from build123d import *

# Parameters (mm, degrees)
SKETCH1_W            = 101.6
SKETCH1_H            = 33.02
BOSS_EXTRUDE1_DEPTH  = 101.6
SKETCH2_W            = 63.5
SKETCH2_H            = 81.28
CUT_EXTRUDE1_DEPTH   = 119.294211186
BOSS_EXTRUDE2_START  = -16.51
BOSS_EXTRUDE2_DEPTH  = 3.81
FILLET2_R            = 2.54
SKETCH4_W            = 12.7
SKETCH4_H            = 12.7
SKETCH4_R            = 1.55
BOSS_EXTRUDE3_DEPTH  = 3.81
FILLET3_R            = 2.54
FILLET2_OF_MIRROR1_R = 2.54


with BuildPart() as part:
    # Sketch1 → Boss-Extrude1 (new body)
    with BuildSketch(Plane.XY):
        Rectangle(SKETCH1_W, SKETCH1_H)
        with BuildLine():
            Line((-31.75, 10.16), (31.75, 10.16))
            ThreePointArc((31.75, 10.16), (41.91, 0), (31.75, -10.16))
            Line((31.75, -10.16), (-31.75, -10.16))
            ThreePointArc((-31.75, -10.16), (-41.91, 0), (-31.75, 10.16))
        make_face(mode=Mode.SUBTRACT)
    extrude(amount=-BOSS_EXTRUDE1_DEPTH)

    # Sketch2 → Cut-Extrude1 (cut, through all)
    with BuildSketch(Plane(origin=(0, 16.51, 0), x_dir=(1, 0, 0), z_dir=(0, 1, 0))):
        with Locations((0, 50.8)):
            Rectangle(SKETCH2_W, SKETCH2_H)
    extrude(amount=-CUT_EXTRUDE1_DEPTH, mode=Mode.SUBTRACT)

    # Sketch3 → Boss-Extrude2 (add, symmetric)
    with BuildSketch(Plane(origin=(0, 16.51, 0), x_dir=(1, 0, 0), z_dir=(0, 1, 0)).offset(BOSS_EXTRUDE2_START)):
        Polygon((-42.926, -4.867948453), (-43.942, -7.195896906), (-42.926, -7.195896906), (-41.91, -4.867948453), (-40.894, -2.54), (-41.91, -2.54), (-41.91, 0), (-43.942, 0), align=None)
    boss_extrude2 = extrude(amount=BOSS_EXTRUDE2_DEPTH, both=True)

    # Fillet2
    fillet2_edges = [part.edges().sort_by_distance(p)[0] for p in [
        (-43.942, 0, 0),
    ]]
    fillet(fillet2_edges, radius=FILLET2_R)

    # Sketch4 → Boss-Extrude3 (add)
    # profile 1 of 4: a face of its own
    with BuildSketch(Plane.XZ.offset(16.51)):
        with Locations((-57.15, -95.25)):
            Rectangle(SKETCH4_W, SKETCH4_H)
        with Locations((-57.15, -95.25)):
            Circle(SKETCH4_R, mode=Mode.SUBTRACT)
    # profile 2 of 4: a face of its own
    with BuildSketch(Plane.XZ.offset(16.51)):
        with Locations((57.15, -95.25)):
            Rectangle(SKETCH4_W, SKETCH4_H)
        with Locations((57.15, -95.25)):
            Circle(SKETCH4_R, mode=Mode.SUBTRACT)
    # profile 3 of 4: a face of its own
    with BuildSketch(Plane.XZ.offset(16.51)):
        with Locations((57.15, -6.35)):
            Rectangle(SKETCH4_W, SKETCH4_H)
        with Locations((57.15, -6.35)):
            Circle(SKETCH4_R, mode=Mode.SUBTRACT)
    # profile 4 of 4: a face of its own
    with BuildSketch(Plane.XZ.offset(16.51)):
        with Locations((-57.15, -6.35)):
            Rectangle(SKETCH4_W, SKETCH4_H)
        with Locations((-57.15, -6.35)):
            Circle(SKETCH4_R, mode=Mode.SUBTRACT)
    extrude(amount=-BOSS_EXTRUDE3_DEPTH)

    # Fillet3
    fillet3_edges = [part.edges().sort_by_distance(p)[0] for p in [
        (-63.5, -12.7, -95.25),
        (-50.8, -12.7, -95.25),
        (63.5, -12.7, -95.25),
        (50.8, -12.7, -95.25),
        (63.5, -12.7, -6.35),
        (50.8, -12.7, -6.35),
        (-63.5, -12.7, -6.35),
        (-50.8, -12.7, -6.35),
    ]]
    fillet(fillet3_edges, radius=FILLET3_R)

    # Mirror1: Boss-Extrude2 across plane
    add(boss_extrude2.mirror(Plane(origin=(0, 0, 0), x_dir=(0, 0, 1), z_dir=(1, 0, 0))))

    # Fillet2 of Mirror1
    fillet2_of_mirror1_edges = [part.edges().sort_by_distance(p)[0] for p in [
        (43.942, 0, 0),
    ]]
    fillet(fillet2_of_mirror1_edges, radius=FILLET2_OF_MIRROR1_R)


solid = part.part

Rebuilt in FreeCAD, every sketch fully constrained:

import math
import FreeCAD as App
import Part
import Sketcher
from FreeCAD import Vector
Q = App.Units.Quantity


def edges_at(feature, points):
    """Names of the edges that pass closest to the given points."""
    edges = feature.Shape.Edges
    near = lambda p: min(range(len(edges)), key=lambda i: edges[i].distToShape(Part.Vertex(*p))[0])
    return sorted({f"Edge{near(p) + 1}" for p in points})


def add_polygon(sketch, points):
    """Adds a closed chain of lines whose ends are joined by coincident constraints."""
    first, n = sketch.GeometryCount, len(points)
    for a, b in zip(points, points[1:] + points[:1]):
        sketch.addGeometry(Part.LineSegment(App.Vector(*a, 0), App.Vector(*b, 0)), False)
    for i in range(n):
        sketch.addConstraint(Sketcher.Constraint("Coincident", first + i, 2, first + (i + 1) % n, 1))

doc = App.newDocument("Part")
params = doc.addObject("Spreadsheet::Sheet", "Params")
for row, (alias, value) in enumerate([
    ("sketch1_radius", "0.4 in"),
    ("sketch1_width", "4 in"),
    ("sketch1_width2", "2.5 in"),
    ("sketch1_height", "1.3 in"),
    ("pad1_length", "4 in"),
    ("sketch2_width", "2.5 in"),
    ("sketch2_height", "3.2 in"),
    ("sketch3_height", "0.1 in"),
    ("sketch3_length", "0.1 in"),
    ("sketch3_length2", "0.2 in"),
    ("sketch3_width", "0.04 in"),
    ("pad2_length", "0.3 in"),
    ("fillet_radius", "0.1 in"),
    ("sketch4_width", "0.5 in"),
    ("pad3_length", "0.15 in"),
    ("fillet2_radius", "0.1 in"),
    ("fillet3_radius", "0.1 in"),
], start=1):
    params.set(f"A{row}", alias)
    params.set(f"B{row}", "=" + value)
    params.setAlias(f"B{row}", alias)

body = doc.addObject("PartDesign::Body", "Body")

# Sketch on XY plane
sketch1 = body.newObject("Sketcher::SketchObject", "Sketch")
sketch1.AttachmentSupport = (doc.getObject("XY_Plane"), [""])
sketch1.MapMode = "FlatFace"
add_polygon(sketch1, [(-50.8, 16.51), (-50.8, -16.51), (50.8, -16.51), (50.8, 16.51)])  # lines 0-3
sketch1.addGeometry(Part.ArcOfCircle(Part.Circle(Vector(-31.75, 0, 0), Vector(0, 0, 1), 10.16), math.radians(90), math.radians(270)), False)  # 4
sketch1.addGeometry(Part.LineSegment(Vector(-31.75, 10.16, 0), Vector(31.75, 10.16, 0)), False)  # 5
sketch1.addGeometry(Part.ArcOfCircle(Part.Circle(Vector(31.75, 0, 0), Vector(0, 0, 1), 10.16), math.radians(-90), math.radians(90)), False)  # 6
sketch1.addGeometry(Part.LineSegment(Vector(31.75, -10.16, 0), Vector(-31.75, -10.16, 0)), False)  # 7
sketch1.addConstraint(Sketcher.Constraint("Tangent", 4, 1, 5, 1))
sketch1.addConstraint(Sketcher.Constraint("Tangent", 5, 2, 6, 2))
sketch1.addConstraint(Sketcher.Constraint("Tangent", 6, 1, 7, 1))
sketch1.addConstraint(Sketcher.Constraint("Tangent", 7, 2, 4, 2))
sketch1.addConstraint(Sketcher.Constraint("Vertical", 0))
sketch1.addConstraint(Sketcher.Constraint("Horizontal", 1))
sketch1.addConstraint(Sketcher.Constraint("Vertical", 2))
sketch1.addConstraint(Sketcher.Constraint("Horizontal", 3))
sketch1.addConstraint(Sketcher.Constraint("Horizontal", 5))
sketch1.addConstraint(Sketcher.Constraint("Horizontal", 7))
sketch1.addConstraint(Sketcher.Constraint("Symmetric", 4, 3, 6, 3, -1, 1))
sketch1.addConstraint(Sketcher.Constraint("Symmetric", 0, 2, 2, 2, -1, 1))
sketch1.addConstraint(Sketcher.Constraint("Radius", 4, Q("0.4 in")))
sketch1.addConstraint(Sketcher.Constraint("DistanceX", 1, 1, 1, 2, Q("4 in")))
sketch1.addConstraint(Sketcher.Constraint("DistanceX", 5, 1, 5, 2, Q("2.5 in")))
sketch1.addConstraint(Sketcher.Constraint("DistanceY", 0, 2, 0, 1, Q("1.3 in")))
sketch1.setExpression("Constraints[16]", "Params.sketch1_radius")
sketch1.setExpression("Constraints[17]", "Params.sketch1_width")
sketch1.setExpression("Constraints[18]", "Params.sketch1_width2")
sketch1.setExpression("Constraints[19]", "Params.sketch1_height")
pad1 = body.newObject("PartDesign::Pad", "Pad")
pad1.Profile = sketch1
pad1.setExpression("Length", "Params.pad1_length")
pad1.Reversed = True

# Sketch on XZ plane
sketch2 = body.newObject("Sketcher::SketchObject", "Sketch001")
sketch2.AttachmentSupport = (doc.getObject("XZ_Plane"), [""])
sketch2.MapMode = "FlatFace"
sketch2.AttachmentOffset = App.Placement(Vector(0, 0, -0.65 * 25.4), App.Rotation())
add_polygon(sketch2, [(-31.75, -91.44), (-31.75, -10.16), (31.75, -10.16), (31.75, -91.44)])  # lines 0-3
sketch2.addConstraint(Sketcher.Constraint("Vertical", 0))
sketch2.addConstraint(Sketcher.Constraint("Horizontal", 1))
sketch2.addConstraint(Sketcher.Constraint("Vertical", 2))
sketch2.addConstraint(Sketcher.Constraint("Horizontal", 3))
sketch2.addConstraint(Sketcher.Constraint("DistanceX", 1, 1, 1, 2, Q("2.5 in")))
sketch2.addConstraint(Sketcher.Constraint("DistanceY", 0, 1, 0, 2, Q("3.2 in")))
sketch2.addConstraint(Sketcher.Constraint("DistanceY", 0, 2, -1, 1, Q("0.4 in")))
sketch2.addConstraint(Sketcher.Constraint("DistanceX", 0, 2, -1, 1, Q("1.25 in")))
sketch2.setExpression("Constraints[8]", "Params.sketch2_width")
sketch2.setExpression("Constraints[9]", "Params.sketch2_height")
pocket1 = body.newObject("PartDesign::Pocket", "Pocket")
pocket1.Profile = sketch2
pocket1.Type = "ThroughAll"
pocket1.Reversed = True

# Sketch on XZ plane
sketch3 = body.newObject("Sketcher::SketchObject", "Sketch002")
sketch3.AttachmentSupport = (doc.getObject("XZ_Plane"), [""])
sketch3.MapMode = "FlatFace"
add_polygon(sketch3, [(-42.926, 4.867948), (-43.942, 7.195897), (-42.926, 7.195897), (-40.894, 2.54), (-41.91, 2.54), (-41.91, 0), (-43.942, 0)])  # lines 0-6
sketch3.addConstraint(Sketcher.Constraint("Horizontal", 1))
sketch3.addConstraint(Sketcher.Constraint("Horizontal", 3))
sketch3.addConstraint(Sketcher.Constraint("Vertical", 4))
sketch3.addConstraint(Sketcher.Constraint("Horizontal", 5))
sketch3.addConstraint(Sketcher.Constraint("PointOnObject", 4, 2, -1))
sketch3.addConstraint(Sketcher.Constraint("Parallel", 0, 2))
sketch3.addConstraint(Sketcher.Constraint("Vertical", 0, 2, 5, 2))
sketch3.addConstraint(Sketcher.Constraint("Vertical", 1, 2, 6, 2))
sketch3.addConstraint(Sketcher.Constraint("Equal", 1, 3))
sketch3.addConstraint(Sketcher.Constraint("DistanceY", 4, 2, 4, 1, Q("0.1 in")))
sketch3.addConstraint(Sketcher.Constraint("Distance", 0, Q("0.1 in")))
sketch3.addConstraint(Sketcher.Constraint("Distance", 2, Q("0.2 in")))
sketch3.addConstraint(Sketcher.Constraint("DistanceX", 1, 1, 1, 2, Q("0.04 in")))
sketch3.addConstraint(Sketcher.Constraint("DistanceX", 0, 2, -1, 1, Q("1.73 in")))
sketch3.setExpression("Constraints[16]", "Params.sketch3_height")
sketch3.setExpression("Constraints[17]", "Params.sketch3_length")
sketch3.setExpression("Constraints[18]", "Params.sketch3_length2")
sketch3.setExpression("Constraints[19]", "Params.sketch3_width")
pad2 = body.newObject("PartDesign::Pad", "Pad001")
pad2.Profile = sketch3
pad2.setExpression("Length", "Params.pad2_length")
pad2.Midplane = True
doc.recompute()

fillet = body.newObject("PartDesign::Fillet", "Fillet")
fillet.Base = (pad2, edges_at(pad2, [(-43.942, 0, 0)]))
fillet.setExpression("Radius", "Params.fillet_radius")

# Sketch on XZ plane
sketch4 = body.newObject("Sketcher::SketchObject", "Sketch003")
sketch4.AttachmentSupport = (doc.getObject("XZ_Plane"), [""])
sketch4.MapMode = "FlatFace"
sketch4.AttachmentOffset = App.Placement(Vector(0, 0, 0.65 * 25.4), App.Rotation())
add_polygon(sketch4, [(-63.5, -88.9), (-63.5, -101.6), (-50.8, -101.6), (-50.8, -88.9)])  # lines 0-3
sketch4.addGeometry(Part.Circle(Vector(-57.15, -95.25, 0), Vector(0, 0, 1), 1.55), False)  # 4
add_polygon(sketch4, [(50.8, -88.9), (50.8, -101.6), (63.5, -101.6), (63.5, -88.9)])  # lines 5-8
sketch4.addGeometry(Part.Circle(Vector(57.15, -95.25, 0), Vector(0, 0, 1), 1.55), False)  # 9
add_polygon(sketch4, [(50.8, 0), (50.8, -12.7), (63.5, -12.7), (63.5, 0)])  # lines 10-13
sketch4.addGeometry(Part.Circle(Vector(57.15, -6.35, 0), Vector(0, 0, 1), 1.55), False)  # 14
add_polygon(sketch4, [(-63.5, 0), (-63.5, -12.7), (-50.8, -12.7), (-50.8, 0)])  # lines 15-18
sketch4.addGeometry(Part.Circle(Vector(-57.15, -6.35, 0), Vector(0, 0, 1), 1.55), False)  # 19
sketch4.addConstraint(Sketcher.Constraint("Vertical", 0))
sketch4.addConstraint(Sketcher.Constraint("Horizontal", 1))
sketch4.addConstraint(Sketcher.Constraint("Vertical", 2))
sketch4.addConstraint(Sketcher.Constraint("Horizontal", 3))
sketch4.addConstraint(Sketcher.Constraint("Vertical", 5))
sketch4.addConstraint(Sketcher.Constraint("Horizontal", 6))
sketch4.addConstraint(Sketcher.Constraint("Vertical", 7))
sketch4.addConstraint(Sketcher.Constraint("Horizontal", 8))
sketch4.addConstraint(Sketcher.Constraint("Vertical", 10))
sketch4.addConstraint(Sketcher.Constraint("Horizontal", 11))
sketch4.addConstraint(Sketcher.Constraint("Vertical", 12))
sketch4.addConstraint(Sketcher.Constraint("Horizontal", 13))
sketch4.addConstraint(Sketcher.Constraint("Vertical", 15))
sketch4.addConstraint(Sketcher.Constraint("Horizontal", 16))
sketch4.addConstraint(Sketcher.Constraint("Vertical", 17))
sketch4.addConstraint(Sketcher.Constraint("Horizontal", 18))
sketch4.addConstraint(Sketcher.Constraint("Equal", 4, 9))
sketch4.addConstraint(Sketcher.Constraint("Equal", 9, 14))
sketch4.addConstraint(Sketcher.Constraint("Equal", 14, 19))
sketch4.addConstraint(Sketcher.Constraint("Symmetric", 13, 2, 17, 2, -1, 1))
sketch4.addConstraint(Sketcher.Constraint("Symmetric", 4, 3, 9, 3, -2))
sketch4.addConstraint(Sketcher.Constraint("Symmetric", 14, 3, 19, 3, -2))
sketch4.addConstraint(Sketcher.Constraint("Symmetric", 1, 2, 5, 2, -2))
sketch4.addConstraint(Sketcher.Constraint("Symmetric", 3, 2, 7, 2, -2))
sketch4.addConstraint(Sketcher.Constraint("Symmetric", 11, 2, 15, 2, -2))
sketch4.addConstraint(Sketcher.Constraint("PointOnObject", 12, 2, -1))
sketch4.addConstraint(Sketcher.Constraint("Vertical", 9, 3, 14, 3))
sketch4.addConstraint(Sketcher.Constraint("Vertical", 8, 2, 10, 2))
sketch4.addConstraint(Sketcher.Constraint("Vertical", 7, 2, 11, 2))
sketch4.addConstraint(Sketcher.Constraint("Equal", 18, 0))
sketch4.addConstraint(Sketcher.Constraint("Equal", 7, 10))
sketch4.addConstraint(Sketcher.Constraint("DistanceX", 1, 1, 1, 2, Q("0.5 in")))
sketch4.addConstraint(Sketcher.Constraint("DistanceY", 0, 2, -1, 1, Q("4 in")))
sketch4.addConstraint(Sketcher.Constraint("DistanceX", 1, 2, -1, 1, Q("2 in")))
sketch4.addConstraint(Sketcher.Constraint("DistanceX", 4, 3, 9, 3, Q("4.5 in")))
sketch4.addConstraint(Sketcher.Constraint("DistanceY", 9, 3, 14, 3, Q("3.5 in")))
sketch4.addConstraint(Sketcher.Constraint("Diameter", 4, 3.1))
sketch4.addConstraint(Sketcher.Constraint("DistanceY", 4, 3, -1, 1, Q("3.75 in")))
sketch4.setExpression("Constraints[47]", "Params.sketch4_width")
pad3 = body.newObject("PartDesign::Pad", "Pad002")
pad3.Profile = sketch4
pad3.setExpression("Length", "Params.pad3_length")
pad3.Reversed = True
doc.recompute()

fillet2 = body.newObject("PartDesign::Fillet", "Fillet001")
fillet2.Base = (pad3, edges_at(pad3, [
    (-63.5, -12.7, -95.25),
    (-50.8, -12.7, -95.25),
    (63.5, -12.7, -95.25),
    (50.8, -12.7, -95.25),
    (63.5, -12.7, -6.35),
    (50.8, -12.7, -6.35),
    (-63.5, -12.7, -6.35),
    (-50.8, -12.7, -6.35),
]))
fillet2.setExpression("Radius", "Params.fillet2_radius")
doc.recompute()

mirrored = body.newObject("PartDesign::Mirrored", "Mirrored")
mirrored.Originals = [pad2]
mirrored.MirrorPlane = (doc.getObject("YZ_Plane"), [""])
body.Tip = mirrored
doc.recompute()

fillet3 = body.newObject("PartDesign::Fillet", "Fillet002")
fillet3.Base = (mirrored, edges_at(mirrored, [(43.942, 0, 0)]))
fillet3.setExpression("Radius", "Params.fillet3_radius")

doc.recompute()
